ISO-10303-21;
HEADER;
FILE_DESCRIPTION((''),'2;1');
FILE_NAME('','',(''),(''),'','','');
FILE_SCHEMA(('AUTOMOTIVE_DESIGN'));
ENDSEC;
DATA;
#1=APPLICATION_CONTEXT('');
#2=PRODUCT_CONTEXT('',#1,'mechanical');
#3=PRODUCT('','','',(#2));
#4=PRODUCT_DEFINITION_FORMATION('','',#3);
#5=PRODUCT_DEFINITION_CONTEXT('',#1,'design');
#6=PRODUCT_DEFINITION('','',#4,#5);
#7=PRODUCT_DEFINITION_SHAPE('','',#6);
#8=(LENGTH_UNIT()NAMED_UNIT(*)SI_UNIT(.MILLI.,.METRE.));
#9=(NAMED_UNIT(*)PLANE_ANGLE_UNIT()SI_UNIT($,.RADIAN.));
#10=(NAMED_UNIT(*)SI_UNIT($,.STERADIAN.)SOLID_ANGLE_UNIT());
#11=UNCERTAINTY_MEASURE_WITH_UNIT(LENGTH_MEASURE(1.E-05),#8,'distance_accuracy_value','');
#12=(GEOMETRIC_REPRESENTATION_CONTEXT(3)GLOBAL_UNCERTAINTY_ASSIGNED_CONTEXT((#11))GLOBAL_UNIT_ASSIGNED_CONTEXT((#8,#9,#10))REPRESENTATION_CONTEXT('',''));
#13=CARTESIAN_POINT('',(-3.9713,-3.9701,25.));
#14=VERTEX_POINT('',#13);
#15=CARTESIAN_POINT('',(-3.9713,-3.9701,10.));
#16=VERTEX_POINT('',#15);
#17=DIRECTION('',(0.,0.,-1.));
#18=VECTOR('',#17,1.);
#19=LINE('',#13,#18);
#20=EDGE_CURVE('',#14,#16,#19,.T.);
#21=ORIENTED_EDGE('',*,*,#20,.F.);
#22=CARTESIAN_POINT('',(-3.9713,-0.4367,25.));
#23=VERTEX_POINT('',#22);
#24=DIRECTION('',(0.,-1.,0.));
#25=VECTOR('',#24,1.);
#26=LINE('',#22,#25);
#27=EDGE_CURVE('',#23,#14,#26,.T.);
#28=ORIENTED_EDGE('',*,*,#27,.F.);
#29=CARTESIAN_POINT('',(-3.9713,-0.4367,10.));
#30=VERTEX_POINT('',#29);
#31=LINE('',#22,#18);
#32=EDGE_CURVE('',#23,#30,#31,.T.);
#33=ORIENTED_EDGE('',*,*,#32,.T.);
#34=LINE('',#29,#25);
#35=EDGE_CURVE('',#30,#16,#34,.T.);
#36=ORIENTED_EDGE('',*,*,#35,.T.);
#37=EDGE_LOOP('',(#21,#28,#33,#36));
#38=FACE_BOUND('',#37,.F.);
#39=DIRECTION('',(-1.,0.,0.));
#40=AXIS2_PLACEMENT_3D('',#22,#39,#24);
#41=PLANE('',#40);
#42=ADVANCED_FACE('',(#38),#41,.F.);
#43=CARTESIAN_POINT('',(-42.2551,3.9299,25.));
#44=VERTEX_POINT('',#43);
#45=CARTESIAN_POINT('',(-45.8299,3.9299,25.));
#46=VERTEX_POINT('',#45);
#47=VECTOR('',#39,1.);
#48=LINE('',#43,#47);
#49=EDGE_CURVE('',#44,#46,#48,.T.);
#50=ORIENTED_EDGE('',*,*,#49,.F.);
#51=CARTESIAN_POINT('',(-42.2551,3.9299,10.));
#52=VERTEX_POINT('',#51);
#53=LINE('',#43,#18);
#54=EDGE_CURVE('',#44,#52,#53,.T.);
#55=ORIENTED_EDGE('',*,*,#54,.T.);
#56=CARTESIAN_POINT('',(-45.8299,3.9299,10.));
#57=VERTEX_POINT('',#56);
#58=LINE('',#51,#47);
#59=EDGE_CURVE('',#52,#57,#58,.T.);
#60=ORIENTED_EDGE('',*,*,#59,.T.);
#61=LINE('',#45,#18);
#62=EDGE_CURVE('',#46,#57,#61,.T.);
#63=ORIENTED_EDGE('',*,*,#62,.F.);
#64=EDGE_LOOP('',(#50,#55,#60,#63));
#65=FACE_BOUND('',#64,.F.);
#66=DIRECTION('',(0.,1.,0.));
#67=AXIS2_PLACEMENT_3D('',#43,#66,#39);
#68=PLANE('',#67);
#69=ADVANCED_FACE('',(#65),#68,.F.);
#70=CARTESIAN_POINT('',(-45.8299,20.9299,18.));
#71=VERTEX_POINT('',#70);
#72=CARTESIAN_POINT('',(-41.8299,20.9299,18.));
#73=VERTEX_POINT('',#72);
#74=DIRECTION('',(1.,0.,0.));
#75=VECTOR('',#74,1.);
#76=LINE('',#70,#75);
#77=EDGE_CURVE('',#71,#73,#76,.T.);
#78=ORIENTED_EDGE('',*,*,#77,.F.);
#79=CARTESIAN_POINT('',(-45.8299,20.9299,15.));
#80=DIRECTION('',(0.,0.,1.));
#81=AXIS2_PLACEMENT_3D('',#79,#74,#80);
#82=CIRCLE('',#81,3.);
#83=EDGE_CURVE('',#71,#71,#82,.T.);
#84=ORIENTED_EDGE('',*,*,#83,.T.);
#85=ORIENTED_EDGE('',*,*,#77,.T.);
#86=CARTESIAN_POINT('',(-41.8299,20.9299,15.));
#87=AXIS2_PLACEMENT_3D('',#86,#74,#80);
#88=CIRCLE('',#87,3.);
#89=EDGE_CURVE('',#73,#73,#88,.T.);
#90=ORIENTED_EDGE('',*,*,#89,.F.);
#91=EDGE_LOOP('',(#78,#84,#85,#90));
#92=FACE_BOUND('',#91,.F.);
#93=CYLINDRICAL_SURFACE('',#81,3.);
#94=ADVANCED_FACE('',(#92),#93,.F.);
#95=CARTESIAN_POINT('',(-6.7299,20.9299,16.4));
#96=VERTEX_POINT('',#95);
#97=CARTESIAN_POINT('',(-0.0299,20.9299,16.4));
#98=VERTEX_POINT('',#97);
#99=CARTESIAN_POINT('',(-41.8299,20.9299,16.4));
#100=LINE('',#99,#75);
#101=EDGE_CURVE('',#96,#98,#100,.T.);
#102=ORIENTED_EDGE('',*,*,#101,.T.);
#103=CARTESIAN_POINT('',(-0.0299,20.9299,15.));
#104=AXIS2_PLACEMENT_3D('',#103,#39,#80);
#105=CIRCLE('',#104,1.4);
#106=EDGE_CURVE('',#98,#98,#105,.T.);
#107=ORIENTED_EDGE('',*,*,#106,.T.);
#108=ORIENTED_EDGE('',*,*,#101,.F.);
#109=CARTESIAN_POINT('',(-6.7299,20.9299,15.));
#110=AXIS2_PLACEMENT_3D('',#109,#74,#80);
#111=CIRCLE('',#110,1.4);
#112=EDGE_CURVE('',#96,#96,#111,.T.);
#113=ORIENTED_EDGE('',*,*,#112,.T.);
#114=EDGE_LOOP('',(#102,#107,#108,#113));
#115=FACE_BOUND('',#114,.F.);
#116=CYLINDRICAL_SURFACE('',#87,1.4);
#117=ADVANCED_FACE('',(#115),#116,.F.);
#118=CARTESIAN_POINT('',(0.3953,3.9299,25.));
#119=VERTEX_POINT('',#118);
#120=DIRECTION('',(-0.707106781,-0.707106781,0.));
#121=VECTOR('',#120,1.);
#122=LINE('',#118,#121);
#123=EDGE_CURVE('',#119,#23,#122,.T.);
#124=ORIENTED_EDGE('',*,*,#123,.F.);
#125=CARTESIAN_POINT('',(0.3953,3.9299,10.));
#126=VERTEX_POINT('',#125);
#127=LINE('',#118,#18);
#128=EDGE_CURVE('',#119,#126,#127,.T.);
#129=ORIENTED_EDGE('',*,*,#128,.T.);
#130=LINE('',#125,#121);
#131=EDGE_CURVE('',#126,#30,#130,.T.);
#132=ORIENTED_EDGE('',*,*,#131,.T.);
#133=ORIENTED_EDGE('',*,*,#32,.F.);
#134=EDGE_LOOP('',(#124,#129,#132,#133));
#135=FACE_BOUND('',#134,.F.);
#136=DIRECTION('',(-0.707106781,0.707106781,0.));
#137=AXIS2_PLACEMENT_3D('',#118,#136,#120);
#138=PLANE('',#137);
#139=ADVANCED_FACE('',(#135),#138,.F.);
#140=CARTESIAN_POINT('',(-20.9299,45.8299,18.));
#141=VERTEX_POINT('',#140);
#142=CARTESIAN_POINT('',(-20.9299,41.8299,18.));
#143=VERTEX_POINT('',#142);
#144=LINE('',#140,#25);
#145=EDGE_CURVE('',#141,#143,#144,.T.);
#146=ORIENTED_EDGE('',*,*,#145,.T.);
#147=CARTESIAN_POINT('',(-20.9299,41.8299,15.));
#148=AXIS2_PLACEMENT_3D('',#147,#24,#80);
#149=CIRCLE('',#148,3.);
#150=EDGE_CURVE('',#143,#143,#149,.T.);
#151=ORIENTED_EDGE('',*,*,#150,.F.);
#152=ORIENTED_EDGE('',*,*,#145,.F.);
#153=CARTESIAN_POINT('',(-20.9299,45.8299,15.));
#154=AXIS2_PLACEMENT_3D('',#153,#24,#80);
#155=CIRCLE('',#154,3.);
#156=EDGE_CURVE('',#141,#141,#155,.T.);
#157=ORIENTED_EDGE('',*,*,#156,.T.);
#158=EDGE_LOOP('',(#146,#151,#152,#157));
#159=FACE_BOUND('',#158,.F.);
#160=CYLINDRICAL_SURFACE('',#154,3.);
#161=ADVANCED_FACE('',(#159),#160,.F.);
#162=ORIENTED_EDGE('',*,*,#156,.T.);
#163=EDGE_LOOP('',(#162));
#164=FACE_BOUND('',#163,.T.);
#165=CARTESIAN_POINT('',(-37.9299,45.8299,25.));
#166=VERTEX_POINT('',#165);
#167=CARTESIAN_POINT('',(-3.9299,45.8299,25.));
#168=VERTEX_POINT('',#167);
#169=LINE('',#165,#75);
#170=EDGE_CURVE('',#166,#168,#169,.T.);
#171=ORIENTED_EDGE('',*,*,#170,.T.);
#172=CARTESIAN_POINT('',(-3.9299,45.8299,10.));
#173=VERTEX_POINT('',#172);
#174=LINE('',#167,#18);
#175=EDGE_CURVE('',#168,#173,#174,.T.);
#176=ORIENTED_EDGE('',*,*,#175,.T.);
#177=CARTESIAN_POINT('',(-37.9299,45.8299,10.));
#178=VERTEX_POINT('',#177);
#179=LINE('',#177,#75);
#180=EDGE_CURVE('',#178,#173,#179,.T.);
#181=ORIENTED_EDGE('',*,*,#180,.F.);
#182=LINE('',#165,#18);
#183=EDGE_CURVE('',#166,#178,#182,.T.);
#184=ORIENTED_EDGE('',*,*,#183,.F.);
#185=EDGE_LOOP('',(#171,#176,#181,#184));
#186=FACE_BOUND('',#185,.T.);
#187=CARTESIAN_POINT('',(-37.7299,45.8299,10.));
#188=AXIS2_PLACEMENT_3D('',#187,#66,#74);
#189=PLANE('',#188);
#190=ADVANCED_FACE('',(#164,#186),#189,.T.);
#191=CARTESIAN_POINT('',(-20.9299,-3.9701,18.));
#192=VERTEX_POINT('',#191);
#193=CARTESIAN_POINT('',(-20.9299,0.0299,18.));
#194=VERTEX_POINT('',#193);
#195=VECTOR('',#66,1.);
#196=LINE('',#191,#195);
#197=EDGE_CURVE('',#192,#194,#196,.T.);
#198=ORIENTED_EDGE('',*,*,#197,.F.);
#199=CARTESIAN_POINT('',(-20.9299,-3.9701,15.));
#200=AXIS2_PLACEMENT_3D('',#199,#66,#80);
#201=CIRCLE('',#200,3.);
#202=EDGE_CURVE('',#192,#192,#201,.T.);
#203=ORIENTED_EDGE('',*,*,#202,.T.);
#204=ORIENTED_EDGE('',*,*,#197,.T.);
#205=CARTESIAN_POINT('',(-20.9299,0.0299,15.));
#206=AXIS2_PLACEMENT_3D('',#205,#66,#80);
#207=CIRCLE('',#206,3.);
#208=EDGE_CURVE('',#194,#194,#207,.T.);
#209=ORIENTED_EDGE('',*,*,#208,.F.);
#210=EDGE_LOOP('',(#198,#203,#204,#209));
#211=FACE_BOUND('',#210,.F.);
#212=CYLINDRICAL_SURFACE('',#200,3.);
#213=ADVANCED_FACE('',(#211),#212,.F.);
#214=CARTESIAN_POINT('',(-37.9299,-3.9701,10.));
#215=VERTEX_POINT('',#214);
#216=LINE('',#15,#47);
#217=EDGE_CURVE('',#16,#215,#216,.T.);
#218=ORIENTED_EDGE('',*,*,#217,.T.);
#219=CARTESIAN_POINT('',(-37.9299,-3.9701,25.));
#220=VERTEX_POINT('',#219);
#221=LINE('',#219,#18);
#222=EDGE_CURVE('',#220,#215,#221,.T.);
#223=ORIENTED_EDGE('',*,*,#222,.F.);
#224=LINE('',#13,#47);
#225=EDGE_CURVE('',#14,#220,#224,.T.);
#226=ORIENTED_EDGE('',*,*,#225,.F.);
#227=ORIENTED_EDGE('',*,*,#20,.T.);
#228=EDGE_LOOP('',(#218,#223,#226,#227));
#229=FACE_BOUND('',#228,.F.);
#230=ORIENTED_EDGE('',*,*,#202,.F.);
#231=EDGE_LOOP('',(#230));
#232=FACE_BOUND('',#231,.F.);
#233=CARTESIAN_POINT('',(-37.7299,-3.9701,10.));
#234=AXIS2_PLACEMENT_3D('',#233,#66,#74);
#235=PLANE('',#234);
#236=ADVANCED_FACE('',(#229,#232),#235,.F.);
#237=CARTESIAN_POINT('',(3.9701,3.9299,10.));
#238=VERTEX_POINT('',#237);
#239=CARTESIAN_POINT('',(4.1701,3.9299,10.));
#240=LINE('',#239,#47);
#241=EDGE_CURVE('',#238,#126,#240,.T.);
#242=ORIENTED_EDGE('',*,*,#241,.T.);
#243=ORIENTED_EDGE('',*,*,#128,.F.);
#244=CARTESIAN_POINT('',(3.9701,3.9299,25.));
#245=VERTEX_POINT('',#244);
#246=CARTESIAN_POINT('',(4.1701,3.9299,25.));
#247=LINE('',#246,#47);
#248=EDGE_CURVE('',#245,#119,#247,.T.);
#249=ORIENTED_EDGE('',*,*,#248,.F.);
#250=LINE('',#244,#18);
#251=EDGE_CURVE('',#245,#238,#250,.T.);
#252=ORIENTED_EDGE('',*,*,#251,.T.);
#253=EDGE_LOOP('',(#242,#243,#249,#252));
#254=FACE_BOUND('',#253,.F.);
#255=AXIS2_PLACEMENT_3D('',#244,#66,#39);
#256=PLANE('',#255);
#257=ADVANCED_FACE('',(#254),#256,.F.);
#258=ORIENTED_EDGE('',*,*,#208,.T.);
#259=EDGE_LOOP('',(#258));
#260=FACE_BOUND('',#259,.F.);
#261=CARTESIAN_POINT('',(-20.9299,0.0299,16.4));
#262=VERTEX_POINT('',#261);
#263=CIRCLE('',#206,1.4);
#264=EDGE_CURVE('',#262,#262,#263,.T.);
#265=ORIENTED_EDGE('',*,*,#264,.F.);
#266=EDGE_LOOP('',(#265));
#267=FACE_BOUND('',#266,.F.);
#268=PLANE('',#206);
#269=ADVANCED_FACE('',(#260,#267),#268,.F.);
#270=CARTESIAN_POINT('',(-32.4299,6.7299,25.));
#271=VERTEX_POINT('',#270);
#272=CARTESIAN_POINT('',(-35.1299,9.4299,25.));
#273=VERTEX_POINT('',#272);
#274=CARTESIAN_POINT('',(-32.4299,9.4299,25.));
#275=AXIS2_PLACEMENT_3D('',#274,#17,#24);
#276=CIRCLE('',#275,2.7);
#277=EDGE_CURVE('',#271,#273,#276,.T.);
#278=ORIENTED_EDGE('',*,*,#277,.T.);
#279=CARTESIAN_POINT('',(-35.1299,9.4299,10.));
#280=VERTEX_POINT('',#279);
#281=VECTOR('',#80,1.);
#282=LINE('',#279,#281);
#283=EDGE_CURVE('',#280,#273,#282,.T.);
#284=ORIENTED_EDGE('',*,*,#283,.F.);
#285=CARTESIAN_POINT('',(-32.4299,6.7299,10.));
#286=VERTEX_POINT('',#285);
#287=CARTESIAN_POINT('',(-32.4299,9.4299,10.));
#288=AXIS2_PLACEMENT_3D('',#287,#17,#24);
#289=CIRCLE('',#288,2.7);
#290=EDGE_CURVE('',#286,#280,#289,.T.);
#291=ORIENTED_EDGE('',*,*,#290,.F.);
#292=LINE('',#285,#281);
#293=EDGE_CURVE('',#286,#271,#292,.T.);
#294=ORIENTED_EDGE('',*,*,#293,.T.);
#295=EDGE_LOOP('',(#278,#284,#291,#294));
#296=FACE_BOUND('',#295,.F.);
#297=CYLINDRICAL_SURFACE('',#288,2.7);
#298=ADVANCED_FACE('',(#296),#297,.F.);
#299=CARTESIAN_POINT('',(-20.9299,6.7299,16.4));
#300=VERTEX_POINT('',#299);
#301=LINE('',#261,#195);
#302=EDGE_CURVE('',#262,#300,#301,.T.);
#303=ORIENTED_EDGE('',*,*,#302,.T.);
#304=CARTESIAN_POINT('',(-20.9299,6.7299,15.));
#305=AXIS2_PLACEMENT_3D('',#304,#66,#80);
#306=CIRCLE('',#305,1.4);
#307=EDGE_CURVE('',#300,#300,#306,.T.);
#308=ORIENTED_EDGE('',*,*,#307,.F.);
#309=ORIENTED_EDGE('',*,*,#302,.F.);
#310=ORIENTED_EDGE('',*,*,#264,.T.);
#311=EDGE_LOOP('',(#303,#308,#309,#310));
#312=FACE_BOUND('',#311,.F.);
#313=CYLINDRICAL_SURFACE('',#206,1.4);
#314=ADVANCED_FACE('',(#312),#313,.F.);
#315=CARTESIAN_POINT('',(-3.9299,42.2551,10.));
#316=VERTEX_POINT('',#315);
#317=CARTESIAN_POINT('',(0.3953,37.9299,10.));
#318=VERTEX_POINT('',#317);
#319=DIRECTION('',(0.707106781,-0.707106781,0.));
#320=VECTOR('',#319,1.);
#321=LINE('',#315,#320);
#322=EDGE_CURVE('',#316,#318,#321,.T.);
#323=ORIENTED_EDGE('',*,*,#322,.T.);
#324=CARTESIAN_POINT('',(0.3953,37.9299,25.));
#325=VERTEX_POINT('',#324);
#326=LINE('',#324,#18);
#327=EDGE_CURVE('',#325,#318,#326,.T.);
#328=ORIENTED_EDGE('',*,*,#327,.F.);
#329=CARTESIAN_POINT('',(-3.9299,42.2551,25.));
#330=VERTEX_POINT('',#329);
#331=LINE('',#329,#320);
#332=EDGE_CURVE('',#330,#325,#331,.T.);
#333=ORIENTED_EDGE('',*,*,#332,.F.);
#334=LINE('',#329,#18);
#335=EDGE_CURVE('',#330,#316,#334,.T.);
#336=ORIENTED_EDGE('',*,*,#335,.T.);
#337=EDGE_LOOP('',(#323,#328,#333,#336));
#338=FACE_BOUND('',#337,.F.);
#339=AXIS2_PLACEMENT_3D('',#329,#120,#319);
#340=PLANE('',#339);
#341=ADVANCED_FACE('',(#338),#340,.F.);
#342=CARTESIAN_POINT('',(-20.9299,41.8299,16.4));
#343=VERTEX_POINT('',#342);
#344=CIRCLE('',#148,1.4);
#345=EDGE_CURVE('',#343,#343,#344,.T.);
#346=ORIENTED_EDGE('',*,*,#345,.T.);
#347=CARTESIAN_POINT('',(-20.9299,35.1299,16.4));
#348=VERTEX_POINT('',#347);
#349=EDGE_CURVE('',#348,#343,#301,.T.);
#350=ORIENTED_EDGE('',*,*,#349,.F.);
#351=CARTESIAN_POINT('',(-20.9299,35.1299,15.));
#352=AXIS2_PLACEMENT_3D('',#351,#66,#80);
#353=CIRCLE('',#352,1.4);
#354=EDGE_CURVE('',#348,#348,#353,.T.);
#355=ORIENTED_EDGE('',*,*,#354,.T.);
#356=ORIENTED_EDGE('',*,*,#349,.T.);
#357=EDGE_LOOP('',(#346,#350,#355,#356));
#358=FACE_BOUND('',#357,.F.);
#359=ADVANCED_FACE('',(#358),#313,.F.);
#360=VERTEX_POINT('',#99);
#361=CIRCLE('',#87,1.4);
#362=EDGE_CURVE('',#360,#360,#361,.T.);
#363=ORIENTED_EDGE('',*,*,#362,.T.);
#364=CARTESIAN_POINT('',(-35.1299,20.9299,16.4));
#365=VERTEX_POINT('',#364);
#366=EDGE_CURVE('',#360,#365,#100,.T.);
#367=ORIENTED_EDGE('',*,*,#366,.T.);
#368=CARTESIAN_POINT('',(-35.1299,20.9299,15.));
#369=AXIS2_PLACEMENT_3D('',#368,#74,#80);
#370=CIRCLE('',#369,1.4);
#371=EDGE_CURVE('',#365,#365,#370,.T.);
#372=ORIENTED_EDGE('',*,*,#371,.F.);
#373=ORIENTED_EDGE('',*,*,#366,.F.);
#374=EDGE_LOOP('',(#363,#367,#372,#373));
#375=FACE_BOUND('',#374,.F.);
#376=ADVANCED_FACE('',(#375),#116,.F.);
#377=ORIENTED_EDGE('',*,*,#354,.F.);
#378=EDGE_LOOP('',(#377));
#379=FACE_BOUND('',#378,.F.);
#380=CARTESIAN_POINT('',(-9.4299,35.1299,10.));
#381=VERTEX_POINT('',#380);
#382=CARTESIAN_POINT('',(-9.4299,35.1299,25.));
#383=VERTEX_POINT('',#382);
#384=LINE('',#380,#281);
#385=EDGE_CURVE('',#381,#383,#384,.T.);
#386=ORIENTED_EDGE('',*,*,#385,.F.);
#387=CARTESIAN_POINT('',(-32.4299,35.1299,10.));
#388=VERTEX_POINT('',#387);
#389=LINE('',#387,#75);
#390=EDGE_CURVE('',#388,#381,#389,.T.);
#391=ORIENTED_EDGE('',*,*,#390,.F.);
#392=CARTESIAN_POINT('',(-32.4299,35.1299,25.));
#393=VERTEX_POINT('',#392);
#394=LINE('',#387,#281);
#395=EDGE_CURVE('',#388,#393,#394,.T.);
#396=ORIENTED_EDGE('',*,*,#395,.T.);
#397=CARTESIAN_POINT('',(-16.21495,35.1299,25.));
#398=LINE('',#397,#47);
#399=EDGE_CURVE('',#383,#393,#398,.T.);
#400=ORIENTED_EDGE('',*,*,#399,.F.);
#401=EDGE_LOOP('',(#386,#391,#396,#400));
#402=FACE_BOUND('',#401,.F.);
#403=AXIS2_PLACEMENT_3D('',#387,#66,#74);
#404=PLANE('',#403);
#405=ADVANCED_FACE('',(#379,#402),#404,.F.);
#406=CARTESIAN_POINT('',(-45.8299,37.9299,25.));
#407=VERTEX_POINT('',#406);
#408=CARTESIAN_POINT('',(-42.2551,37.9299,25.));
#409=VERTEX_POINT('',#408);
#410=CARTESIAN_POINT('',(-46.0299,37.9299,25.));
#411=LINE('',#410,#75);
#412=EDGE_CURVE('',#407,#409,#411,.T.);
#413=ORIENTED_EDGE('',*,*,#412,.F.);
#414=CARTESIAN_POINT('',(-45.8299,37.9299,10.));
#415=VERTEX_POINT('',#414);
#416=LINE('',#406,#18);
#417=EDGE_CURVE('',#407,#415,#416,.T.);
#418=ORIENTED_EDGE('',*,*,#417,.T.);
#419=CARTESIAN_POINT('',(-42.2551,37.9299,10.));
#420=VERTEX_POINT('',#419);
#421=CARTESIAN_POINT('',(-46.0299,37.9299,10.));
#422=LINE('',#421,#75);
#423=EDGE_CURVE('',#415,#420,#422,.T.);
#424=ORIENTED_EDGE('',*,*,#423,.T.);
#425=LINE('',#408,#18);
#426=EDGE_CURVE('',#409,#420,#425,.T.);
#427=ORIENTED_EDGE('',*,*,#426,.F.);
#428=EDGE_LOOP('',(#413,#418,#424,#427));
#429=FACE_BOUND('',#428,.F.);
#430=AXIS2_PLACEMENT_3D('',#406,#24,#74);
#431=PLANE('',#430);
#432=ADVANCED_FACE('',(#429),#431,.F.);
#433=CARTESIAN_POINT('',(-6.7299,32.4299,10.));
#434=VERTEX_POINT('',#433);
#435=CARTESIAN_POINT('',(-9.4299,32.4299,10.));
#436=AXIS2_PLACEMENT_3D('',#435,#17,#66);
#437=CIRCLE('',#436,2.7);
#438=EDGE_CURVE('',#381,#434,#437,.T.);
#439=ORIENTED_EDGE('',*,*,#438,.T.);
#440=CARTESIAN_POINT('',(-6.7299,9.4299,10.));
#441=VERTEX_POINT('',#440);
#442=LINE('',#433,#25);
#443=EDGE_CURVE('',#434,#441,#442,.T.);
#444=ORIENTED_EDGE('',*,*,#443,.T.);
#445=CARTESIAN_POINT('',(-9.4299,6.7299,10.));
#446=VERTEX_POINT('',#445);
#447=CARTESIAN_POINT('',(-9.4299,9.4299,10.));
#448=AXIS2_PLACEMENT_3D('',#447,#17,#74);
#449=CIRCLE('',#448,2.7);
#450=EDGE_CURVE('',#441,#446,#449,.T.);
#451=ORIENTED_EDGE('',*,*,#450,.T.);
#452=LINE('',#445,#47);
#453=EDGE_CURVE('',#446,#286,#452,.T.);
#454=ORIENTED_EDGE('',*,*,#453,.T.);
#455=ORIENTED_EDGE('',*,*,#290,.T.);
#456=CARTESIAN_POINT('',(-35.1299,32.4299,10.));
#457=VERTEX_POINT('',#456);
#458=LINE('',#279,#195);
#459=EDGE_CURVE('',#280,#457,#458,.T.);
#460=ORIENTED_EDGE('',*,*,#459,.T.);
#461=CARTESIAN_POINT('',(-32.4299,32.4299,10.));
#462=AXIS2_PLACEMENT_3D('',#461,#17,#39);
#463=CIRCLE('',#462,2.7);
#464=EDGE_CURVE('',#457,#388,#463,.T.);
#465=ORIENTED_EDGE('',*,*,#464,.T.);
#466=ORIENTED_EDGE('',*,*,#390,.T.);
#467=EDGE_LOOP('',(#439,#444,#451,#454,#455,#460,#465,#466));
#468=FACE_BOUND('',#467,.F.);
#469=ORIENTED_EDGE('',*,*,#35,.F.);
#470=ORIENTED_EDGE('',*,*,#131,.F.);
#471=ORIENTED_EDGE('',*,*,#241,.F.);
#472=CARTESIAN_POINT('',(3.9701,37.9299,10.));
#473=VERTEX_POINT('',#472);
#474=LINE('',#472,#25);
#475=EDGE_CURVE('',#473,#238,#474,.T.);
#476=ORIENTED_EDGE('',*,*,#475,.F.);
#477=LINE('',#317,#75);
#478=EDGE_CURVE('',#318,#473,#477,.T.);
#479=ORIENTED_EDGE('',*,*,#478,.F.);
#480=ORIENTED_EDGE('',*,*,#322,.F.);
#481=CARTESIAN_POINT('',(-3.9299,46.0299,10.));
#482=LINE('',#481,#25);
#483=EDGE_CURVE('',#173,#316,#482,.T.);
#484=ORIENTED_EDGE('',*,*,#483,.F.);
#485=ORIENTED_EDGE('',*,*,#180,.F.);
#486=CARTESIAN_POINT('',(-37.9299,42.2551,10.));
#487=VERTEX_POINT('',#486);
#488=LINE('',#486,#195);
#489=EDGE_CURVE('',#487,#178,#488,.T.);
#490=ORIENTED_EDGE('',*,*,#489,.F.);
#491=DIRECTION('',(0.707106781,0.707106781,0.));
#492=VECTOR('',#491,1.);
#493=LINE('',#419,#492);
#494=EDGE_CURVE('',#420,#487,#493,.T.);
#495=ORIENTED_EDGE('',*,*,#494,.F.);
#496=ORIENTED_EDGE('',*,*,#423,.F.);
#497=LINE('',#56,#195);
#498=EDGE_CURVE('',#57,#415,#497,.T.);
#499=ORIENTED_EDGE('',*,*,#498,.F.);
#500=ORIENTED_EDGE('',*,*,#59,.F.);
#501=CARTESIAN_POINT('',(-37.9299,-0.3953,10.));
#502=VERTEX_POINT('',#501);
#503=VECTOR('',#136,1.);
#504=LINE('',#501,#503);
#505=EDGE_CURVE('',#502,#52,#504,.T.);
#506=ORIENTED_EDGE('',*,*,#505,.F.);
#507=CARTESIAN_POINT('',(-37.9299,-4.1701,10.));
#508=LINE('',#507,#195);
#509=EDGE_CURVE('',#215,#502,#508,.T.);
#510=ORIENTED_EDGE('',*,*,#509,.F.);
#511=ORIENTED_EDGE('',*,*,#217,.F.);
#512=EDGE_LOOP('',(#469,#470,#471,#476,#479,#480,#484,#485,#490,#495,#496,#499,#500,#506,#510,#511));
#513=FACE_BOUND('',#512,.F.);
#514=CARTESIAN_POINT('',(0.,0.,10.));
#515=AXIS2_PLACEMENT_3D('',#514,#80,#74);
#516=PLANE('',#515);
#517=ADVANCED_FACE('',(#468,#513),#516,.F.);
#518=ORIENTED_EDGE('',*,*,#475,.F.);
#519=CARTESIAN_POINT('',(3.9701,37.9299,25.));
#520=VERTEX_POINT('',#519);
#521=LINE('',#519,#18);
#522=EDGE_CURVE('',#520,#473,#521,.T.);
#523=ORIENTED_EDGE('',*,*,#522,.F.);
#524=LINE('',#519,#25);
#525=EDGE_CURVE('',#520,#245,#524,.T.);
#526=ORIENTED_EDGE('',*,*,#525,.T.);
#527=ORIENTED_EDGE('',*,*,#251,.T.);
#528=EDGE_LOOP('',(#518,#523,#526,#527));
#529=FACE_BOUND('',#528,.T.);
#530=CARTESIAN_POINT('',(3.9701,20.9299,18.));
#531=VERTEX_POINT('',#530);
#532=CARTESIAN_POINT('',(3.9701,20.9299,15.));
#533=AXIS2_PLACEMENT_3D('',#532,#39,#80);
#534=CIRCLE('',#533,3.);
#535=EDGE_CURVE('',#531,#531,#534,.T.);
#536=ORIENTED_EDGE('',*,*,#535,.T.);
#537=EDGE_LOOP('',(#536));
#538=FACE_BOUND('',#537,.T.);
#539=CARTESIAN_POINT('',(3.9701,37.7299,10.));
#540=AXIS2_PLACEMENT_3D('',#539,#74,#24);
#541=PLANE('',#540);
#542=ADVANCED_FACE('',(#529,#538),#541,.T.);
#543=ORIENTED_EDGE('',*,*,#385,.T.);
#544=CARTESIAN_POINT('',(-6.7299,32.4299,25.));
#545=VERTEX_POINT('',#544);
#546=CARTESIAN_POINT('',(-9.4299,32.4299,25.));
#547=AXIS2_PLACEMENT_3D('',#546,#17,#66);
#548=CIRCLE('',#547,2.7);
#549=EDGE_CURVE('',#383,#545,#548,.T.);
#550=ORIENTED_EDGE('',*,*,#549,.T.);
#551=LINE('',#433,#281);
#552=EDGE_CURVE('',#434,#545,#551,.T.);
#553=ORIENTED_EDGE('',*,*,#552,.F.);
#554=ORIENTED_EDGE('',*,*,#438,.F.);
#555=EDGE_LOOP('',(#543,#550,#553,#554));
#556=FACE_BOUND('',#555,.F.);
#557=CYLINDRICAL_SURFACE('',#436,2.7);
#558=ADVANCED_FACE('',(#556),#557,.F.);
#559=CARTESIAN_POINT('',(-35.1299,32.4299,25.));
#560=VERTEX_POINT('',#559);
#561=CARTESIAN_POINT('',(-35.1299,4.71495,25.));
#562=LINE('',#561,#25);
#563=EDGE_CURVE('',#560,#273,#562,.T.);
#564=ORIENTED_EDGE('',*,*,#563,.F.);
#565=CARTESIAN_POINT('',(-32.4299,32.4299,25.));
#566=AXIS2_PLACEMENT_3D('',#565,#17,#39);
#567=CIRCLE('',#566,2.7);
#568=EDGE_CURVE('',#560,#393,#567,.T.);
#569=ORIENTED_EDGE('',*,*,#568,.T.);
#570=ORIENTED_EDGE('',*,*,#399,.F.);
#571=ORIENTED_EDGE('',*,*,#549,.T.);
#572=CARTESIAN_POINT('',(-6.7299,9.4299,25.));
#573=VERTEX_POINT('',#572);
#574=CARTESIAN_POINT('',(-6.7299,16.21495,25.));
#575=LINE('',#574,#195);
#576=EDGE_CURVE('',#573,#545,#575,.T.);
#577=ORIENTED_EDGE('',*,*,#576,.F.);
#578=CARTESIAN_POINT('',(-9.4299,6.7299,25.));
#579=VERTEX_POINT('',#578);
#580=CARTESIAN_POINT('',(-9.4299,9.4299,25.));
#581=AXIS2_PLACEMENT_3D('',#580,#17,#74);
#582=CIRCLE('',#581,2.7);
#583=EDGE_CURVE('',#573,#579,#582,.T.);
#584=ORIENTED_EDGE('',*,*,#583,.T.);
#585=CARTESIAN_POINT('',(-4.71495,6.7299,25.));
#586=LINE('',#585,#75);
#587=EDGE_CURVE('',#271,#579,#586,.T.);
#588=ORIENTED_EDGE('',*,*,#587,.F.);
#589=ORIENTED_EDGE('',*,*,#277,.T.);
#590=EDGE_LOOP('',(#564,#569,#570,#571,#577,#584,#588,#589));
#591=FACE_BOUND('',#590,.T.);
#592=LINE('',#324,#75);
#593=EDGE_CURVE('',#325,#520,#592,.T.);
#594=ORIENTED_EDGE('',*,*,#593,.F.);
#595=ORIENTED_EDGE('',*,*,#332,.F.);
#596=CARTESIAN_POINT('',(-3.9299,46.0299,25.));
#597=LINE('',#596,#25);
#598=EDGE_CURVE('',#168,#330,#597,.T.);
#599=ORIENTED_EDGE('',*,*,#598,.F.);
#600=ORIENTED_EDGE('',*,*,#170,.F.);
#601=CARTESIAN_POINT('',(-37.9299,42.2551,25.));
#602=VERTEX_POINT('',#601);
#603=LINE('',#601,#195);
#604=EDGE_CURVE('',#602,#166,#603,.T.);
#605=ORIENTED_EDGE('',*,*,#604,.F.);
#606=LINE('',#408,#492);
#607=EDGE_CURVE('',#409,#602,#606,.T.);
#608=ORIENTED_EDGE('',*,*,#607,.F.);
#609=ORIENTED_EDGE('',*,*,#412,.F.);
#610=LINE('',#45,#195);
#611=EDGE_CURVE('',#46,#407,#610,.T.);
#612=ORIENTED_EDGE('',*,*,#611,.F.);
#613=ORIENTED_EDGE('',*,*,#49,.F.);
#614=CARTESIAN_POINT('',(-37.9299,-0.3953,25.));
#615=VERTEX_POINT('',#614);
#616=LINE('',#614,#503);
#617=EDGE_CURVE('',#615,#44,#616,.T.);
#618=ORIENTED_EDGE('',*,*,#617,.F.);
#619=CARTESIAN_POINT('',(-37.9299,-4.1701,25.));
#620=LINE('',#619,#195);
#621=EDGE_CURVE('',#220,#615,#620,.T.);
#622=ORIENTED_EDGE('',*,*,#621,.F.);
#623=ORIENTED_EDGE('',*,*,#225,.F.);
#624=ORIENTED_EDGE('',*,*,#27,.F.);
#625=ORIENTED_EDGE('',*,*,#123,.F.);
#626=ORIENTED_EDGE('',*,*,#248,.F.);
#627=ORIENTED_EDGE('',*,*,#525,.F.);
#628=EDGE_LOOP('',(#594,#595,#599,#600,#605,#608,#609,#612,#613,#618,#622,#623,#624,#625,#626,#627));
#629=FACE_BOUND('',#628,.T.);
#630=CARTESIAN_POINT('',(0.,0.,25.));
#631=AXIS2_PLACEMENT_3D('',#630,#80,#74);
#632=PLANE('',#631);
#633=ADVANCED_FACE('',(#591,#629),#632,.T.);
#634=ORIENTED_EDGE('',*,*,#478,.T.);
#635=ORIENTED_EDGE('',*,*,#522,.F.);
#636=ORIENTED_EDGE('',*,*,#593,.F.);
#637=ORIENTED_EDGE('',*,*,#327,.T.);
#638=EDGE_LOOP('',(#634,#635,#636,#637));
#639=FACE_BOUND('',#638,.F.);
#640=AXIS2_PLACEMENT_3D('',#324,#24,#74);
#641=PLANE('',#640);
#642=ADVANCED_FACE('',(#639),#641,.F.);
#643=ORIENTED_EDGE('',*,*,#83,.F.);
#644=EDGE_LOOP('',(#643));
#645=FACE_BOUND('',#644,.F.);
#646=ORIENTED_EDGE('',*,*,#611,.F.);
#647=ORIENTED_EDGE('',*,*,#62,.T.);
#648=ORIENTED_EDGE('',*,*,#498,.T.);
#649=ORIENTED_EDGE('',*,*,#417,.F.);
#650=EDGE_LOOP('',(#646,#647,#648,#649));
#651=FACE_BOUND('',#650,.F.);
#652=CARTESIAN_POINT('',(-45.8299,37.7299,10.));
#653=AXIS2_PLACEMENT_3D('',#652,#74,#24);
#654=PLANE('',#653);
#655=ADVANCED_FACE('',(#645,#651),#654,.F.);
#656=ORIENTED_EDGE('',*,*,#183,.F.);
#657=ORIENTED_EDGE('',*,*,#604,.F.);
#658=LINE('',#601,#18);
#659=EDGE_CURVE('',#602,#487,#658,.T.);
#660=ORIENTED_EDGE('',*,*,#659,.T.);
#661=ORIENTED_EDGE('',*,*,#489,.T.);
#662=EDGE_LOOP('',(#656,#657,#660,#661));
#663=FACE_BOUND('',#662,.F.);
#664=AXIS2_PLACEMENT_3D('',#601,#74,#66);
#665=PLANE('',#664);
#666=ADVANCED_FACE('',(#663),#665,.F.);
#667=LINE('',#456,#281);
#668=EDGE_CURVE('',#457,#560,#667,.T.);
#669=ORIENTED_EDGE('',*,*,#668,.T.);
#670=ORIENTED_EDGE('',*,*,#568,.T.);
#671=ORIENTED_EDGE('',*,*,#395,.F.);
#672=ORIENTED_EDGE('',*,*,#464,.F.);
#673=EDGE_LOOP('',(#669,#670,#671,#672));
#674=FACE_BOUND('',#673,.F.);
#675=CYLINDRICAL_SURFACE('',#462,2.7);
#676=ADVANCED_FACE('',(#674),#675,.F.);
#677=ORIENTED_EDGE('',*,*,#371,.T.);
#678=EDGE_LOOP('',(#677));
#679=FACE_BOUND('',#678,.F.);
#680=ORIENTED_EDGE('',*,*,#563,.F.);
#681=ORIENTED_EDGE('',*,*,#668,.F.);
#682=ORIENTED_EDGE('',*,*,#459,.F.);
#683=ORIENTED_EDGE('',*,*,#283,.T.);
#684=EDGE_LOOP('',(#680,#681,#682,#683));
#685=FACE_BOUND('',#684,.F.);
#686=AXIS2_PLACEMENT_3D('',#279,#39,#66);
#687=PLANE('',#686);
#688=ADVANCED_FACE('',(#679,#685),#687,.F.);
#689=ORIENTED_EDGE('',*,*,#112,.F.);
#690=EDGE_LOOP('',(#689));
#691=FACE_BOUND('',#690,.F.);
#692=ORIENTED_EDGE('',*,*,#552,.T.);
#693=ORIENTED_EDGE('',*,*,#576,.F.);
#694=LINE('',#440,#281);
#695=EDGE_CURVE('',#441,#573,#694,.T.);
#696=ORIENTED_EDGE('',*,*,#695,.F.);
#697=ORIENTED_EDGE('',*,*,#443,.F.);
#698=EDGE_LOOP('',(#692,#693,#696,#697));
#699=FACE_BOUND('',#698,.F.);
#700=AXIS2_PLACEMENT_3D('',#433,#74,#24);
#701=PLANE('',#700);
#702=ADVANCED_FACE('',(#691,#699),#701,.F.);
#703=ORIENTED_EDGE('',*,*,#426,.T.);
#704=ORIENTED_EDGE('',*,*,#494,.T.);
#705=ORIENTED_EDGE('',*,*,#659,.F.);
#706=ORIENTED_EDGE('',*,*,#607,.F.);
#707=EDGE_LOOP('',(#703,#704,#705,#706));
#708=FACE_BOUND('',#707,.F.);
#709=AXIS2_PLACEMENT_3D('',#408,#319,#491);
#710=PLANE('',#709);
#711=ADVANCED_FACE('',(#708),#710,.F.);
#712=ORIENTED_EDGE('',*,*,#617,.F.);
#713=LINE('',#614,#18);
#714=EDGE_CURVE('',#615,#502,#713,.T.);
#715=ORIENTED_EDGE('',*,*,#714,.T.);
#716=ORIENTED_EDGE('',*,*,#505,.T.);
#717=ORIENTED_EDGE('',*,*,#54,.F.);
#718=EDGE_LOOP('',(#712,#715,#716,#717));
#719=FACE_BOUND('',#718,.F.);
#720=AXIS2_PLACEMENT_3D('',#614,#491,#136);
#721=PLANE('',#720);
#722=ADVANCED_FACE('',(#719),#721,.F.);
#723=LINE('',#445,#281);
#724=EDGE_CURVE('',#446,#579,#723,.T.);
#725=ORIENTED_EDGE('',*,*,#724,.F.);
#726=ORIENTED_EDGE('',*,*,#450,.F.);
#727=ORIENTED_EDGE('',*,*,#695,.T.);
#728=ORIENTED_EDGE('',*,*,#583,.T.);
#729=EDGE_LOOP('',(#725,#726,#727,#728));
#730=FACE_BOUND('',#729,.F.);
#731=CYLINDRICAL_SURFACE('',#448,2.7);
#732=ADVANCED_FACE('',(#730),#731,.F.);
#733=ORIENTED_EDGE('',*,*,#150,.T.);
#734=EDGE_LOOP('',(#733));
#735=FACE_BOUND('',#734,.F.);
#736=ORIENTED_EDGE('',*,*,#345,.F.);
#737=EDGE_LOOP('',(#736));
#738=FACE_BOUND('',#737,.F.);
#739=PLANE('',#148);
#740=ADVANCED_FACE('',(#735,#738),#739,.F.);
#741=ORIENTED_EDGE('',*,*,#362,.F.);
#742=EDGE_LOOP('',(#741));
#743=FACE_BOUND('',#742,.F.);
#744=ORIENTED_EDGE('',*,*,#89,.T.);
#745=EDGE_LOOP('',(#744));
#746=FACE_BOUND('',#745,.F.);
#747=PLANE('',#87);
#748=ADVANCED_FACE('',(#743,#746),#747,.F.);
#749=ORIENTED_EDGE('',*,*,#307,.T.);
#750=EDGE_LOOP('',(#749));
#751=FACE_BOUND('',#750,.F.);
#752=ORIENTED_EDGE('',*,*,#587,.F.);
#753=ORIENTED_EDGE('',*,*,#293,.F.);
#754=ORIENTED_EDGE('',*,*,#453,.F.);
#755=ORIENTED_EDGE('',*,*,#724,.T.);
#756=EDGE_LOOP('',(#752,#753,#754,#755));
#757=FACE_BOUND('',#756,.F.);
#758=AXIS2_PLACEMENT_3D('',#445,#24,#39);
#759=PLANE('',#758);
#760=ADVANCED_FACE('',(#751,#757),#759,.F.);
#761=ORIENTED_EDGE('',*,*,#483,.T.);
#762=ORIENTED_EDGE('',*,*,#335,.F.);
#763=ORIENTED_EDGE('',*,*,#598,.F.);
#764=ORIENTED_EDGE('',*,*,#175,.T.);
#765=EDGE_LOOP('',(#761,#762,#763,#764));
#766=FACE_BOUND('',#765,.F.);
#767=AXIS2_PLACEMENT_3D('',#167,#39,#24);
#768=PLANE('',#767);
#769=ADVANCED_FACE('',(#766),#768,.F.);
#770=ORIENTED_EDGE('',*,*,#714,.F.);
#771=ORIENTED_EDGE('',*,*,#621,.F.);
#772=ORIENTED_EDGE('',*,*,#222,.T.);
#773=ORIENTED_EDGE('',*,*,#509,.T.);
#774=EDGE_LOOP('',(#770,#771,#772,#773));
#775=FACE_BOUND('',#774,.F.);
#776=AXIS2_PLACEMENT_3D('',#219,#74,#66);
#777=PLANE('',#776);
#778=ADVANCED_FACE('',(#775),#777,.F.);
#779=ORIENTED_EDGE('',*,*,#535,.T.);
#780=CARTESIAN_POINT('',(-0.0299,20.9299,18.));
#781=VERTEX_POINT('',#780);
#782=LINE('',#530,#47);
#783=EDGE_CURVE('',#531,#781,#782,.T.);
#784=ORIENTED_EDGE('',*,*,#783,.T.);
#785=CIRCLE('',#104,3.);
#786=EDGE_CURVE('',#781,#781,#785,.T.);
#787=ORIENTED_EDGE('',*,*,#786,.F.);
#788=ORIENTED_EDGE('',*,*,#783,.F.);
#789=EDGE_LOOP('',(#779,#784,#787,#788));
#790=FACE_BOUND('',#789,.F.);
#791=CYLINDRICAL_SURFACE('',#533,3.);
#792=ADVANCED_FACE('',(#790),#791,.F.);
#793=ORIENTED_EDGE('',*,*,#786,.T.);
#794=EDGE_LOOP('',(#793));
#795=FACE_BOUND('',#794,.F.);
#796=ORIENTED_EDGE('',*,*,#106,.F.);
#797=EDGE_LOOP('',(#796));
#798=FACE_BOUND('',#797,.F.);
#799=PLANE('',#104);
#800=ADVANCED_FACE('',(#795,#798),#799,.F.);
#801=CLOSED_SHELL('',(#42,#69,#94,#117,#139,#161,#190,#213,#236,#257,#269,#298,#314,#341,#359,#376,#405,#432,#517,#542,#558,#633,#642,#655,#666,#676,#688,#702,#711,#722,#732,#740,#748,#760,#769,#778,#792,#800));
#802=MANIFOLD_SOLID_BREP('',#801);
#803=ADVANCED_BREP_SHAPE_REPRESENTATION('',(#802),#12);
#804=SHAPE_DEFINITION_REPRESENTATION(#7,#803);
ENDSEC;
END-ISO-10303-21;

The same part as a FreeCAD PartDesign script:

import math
import FreeCAD as App
import Part
import Sketcher

V = App.Vector

doc = App.newDocument("Part")
body = doc.addObject("PartDesign::Body", "Body")

# Sketch on XY plane
sketch1 = body.newObject("Sketcher::SketchObject", "Sketch")
sketch1.AttachmentSupport = (doc.getObject("XY_Plane"), [""])
sketch1.MapMode = "FlatFace"
sketch1.AttachmentOffset = App.Placement(V(0, 0, 10), App.Rotation())
sketch1.addGeometry(Part.LineSegment(V(-4.171, -0.354, 0), V(0.312, 4.13, 0)), False)
sketch1.addGeometry(Part.LineSegment(V(0.312, 4.13, 0), V(3.97, 4.13, 0)), False)
sketch1.addGeometry(Part.LineSegment(V(3.97, 4.13, 0), V(3.97, 37.73, 0)), False)
sketch1.addGeometry(Part.LineSegment(V(3.97, 37.73, 0), V(0.312, 37.73, 0)), False)
sketch1.addGeometry(Part.LineSegment(V(0.312, 37.73, 0), V(-4.13, 42.172, 0)), False)
sketch1.addGeometry(Part.LineSegment(V(-4.13, 42.172, 0), V(-4.13, 45.83, 0)), False)
sketch1.addGeometry(Part.LineSegment(V(-4.13, 45.83, 0), V(-37.73, 45.83, 0)), False)
sketch1.addGeometry(Part.LineSegment(V(-37.73, 45.83, 0), V(-37.73, 42.172, 0)), False)
sketch1.addGeometry(Part.LineSegment(V(-37.73, 42.172, 0), V(-42.172, 37.73, 0)), False)
sketch1.addGeometry(Part.LineSegment(V(-42.172, 37.73, 0), V(-45.83, 37.73, 0)), False)
sketch1.addGeometry(Part.LineSegment(V(-45.83, 37.73, 0), V(-45.83, 4.13, 0)), False)
sketch1.addGeometry(Part.LineSegment(V(-45.83, 4.13, 0), V(-42.172, 4.13, 0)), False)
sketch1.addGeometry(Part.LineSegment(V(-42.172, 4.13, 0), V(-37.689, -0.354, 0)), False)
sketch1.addGeometry(Part.LineSegment(V(-37.689, -0.354, 0), V(-37.73, -0.354, 0)), False)
sketch1.addGeometry(Part.LineSegment(V(-37.73, -0.354, 0), V(-37.73, -3.97, 0)), False)
sketch1.addGeometry(Part.LineSegment(V(-37.73, -3.97, 0), V(-4.171, -3.97, 0)), False)
sketch1.addGeometry(Part.LineSegment(V(-4.171, -3.97, 0), V(-4.171, -0.354, 0)), False)
sketch1.addConstraint(Sketcher.Constraint("Coincident", 0, 2, 1, 1))
sketch1.addConstraint(Sketcher.Constraint("Coincident", 1, 2, 2, 1))
sketch1.addConstraint(Sketcher.Constraint("Coincident", 2, 2, 3, 1))
sketch1.addConstraint(Sketcher.Constraint("Coincident", 3, 2, 4, 1))
sketch1.addConstraint(Sketcher.Constraint("Coincident", 4, 2, 5, 1))
sketch1.addConstraint(Sketcher.Constraint("Coincident", 5, 2, 6, 1))
sketch1.addConstraint(Sketcher.Constraint("Coincident", 6, 2, 7, 1))
sketch1.addConstraint(Sketcher.Constraint("Coincident", 7, 2, 8, 1))
sketch1.addConstraint(Sketcher.Constraint("Coincident", 8, 2, 9, 1))
sketch1.addConstraint(Sketcher.Constraint("Coincident", 9, 2, 10, 1))
sketch1.addConstraint(Sketcher.Constraint("Coincident", 10, 2, 11, 1))
sketch1.addConstraint(Sketcher.Constraint("Coincident", 11, 2, 12, 1))
sketch1.addConstraint(Sketcher.Constraint("Coincident", 12, 2, 13, 1))
sketch1.addConstraint(Sketcher.Constraint("Coincident", 13, 2, 14, 1))
sketch1.addConstraint(Sketcher.Constraint("Coincident", 14, 2, 15, 1))
sketch1.addConstraint(Sketcher.Constraint("Coincident", 15, 2, 16, 1))
sketch1.addConstraint(Sketcher.Constraint("Coincident", 16, 2, 0, 1))
sketch1.addConstraint(Sketcher.Constraint("Horizontal", 1))
sketch1.addConstraint(Sketcher.Constraint("Vertical", 2))
sketch1.addConstraint(Sketcher.Constraint("Horizontal", 3))
sketch1.addConstraint(Sketcher.Constraint("Vertical", 5))
sketch1.addConstraint(Sketcher.Constraint("Horizontal", 6))
sketch1.addConstraint(Sketcher.Constraint("Vertical", 7))
sketch1.addConstraint(Sketcher.Constraint("Horizontal", 9))
sketch1.addConstraint(Sketcher.Constraint("Vertical", 10))
sketch1.addConstraint(Sketcher.Constraint("Horizontal", 11))
sketch1.addConstraint(Sketcher.Constraint("Horizontal", 13))
sketch1.addConstraint(Sketcher.Constraint("Vertical", 14))
sketch1.addConstraint(Sketcher.Constraint("Horizontal", 15))
sketch1.addConstraint(Sketcher.Constraint("Vertical", 16))
sketch1.addConstraint(Sketcher.Constraint("Perpendicular", 0, 4))
sketch1.addConstraint(Sketcher.Constraint("Perpendicular", 4, 8))
sketch1.addConstraint(Sketcher.Constraint("Perpendicular", 8, 12))
sketch1.addConstraint(Sketcher.Constraint("Horizontal", 4, 2, 7, 2))
sketch1.addConstraint(Sketcher.Constraint("Horizontal", 3, 2, 8, 2))
sketch1.addConstraint(Sketcher.Constraint("Horizontal", 1, 2, 10, 2))
sketch1.addConstraint(Sketcher.Constraint("Horizontal", 13, 2, 16, 2))
sketch1.addConstraint(Sketcher.Constraint("Vertical", 0, 2, 3, 2))
sketch1.addConstraint(Sketcher.Constraint("Vertical", 8, 2, 11, 2))
sketch1.addConstraint(Sketcher.Constraint("Vertical", 7, 2, 13, 2))
sketch1.addConstraint(Sketcher.Constraint("Equal", 3, 9))
sketch1.addConstraint(Sketcher.Constraint("Equal", 6, 2))
sketch1.addConstraint(Sketcher.Constraint("Equal", 11, 5))
sketch1.addConstraint(Sketcher.Constraint("Equal", 4, 8))
sketch1.addConstraint(Sketcher.Constraint("DistanceX", 6, 2, 6, 1, 33.6))
sketch1.addConstraint(Sketcher.Constraint("DistanceX", 4, 2, 2, 2, 8.1))
sketch1.addConstraint(Sketcher.Constraint("DistanceY", 14, 2, 11, 2, 8.1))
sketch1.addConstraint(Sketcher.Constraint("DistanceY", -1, 1, 0, 2, 4.13))
sketch1.addConstraint(Sketcher.Constraint("DistanceX", -1, 1, 1, 2, 3.97))
sketch1.addConstraint(Sketcher.Constraint("Distance", 0, 6.341))
sketch1.addConstraint(Sketcher.Constraint("DistanceX", 1, 1, 1, 2, 3.6577))
pad1 = body.newObject("PartDesign::Pad", "Pad")
pad1.Profile = sketch1
pad1.Length = 15

# Sketch on XY plane
sketch2 = body.newObject("Sketcher::SketchObject", "Sketch001")
sketch2.AttachmentSupport = (doc.getObject("XY_Plane"), [""])
sketch2.MapMode = "FlatFace"
sketch2.AttachmentOffset = App.Placement(V(0, 0, 25), App.Rotation())
sketch2.addGeometry(Part.LineSegment(V(3.97, 3.93, 0), V(3.97, 4.13, 0)), False)
sketch2.addGeometry(Part.LineSegment(V(3.97, 4.13, 0), V(0.312, 4.13, 0)), False)
sketch2.addGeometry(Part.LineSegment(V(0.312, 4.13, 0), V(-4.171, -0.354, 0)), False)
sketch2.addGeometry(Part.LineSegment(V(-4.171, -0.354, 0), V(-4.171, -3.97, 0)), False)
sketch2.addGeometry(Part.LineSegment(V(-4.171, -3.97, 0), V(-3.971, -3.97, 0)), False)
sketch2.addGeometry(Part.LineSegment(V(-3.971, -3.97, 0), V(-3.971, -0.437, 0)), False)
sketch2.addGeometry(Part.LineSegment(V(-3.971, -0.437, 0), V(0.395, 3.93, 0)), False)
sketch2.addGeometry(Part.LineSegment(V(0.395, 3.93, 0), V(3.97, 3.93, 0)), False)
sketch2.addGeometry(Part.LineSegment(V(-3.93, 45.83, 0), V(-4.13, 45.83, 0)), False)
sketch2.addGeometry(Part.LineSegment(V(-4.13, 45.83, 0), V(-4.13, 42.172, 0)), False)
sketch2.addGeometry(Part.LineSegment(V(-4.13, 42.172, 0), V(0.312, 37.73, 0)), False)
sketch2.addGeometry(Part.LineSegment(V(0.312, 37.73, 0), V(3.97, 37.73, 0)), False)
sketch2.addGeometry(Part.LineSegment(V(3.97, 37.73, 0), V(3.97, 37.93, 0)), False)
sketch2.addGeometry(Part.LineSegment(V(3.97, 37.93, 0), V(0.395, 37.93, 0)), False)
sketch2.addGeometry(Part.LineSegment(V(0.395, 37.93, 0), V(-3.93, 42.255, 0)), False)
sketch2.addGeometry(Part.LineSegment(V(-3.93, 42.255, 0), V(-3.93, 45.83, 0)), False)
sketch2.addGeometry(Part.LineSegment(V(-42.172, 37.73, 0), V(-37.73, 42.172, 0)), False)
sketch2.addGeometry(Part.LineSegment(V(-37.73, 42.172, 0), V(-37.73, 45.83, 0)), False)
sketch2.addGeometry(Part.LineSegment(V(-37.73, 45.83, 0), V(-37.93, 45.83, 0)), False)
sketch2.addGeometry(Part.LineSegment(V(-37.93, 45.83, 0), V(-37.93, 42.255, 0)), False)
sketch2.addGeometry(Part.LineSegment(V(-37.93, 42.255, 0), V(-42.255, 37.93, 0)), False)
sketch2.addGeometry(Part.LineSegment(V(-42.255, 37.93, 0), V(-45.83, 37.93, 0)), False)
sketch2.addGeometry(Part.LineSegment(V(-45.83, 37.93, 0), V(-45.83, 37.73, 0)), False)
sketch2.addGeometry(Part.LineSegment(V(-45.83, 37.73, 0), V(-42.172, 37.73, 0)), False)
sketch2.addGeometry(Part.LineSegment(V(-42.172, 4.13, 0), V(-45.83, 4.13, 0)), False)
sketch2.addGeometry(Part.LineSegment(V(-45.83, 4.13, 0), V(-45.83, 3.93, 0)), False)
sketch2.addGeometry(Part.LineSegment(V(-45.83, 3.93, 0), V(-42.255, 3.93, 0)), False)
sketch2.addGeometry(Part.LineSegment(V(-42.255, 3.93, 0), V(-37.93, -0.395, 0)), False)
sketch2.addGeometry(Part.LineSegment(V(-37.93, -0.395, 0), V(-37.93, -3.97, 0)), False)
sketch2.addGeometry(Part.LineSegment(V(-37.93, -3.97, 0), V(-37.73, -3.97, 0)), False)
sketch2.addGeometry(Part.LineSegment(V(-37.73, -3.97, 0), V(-37.73, -0.354, 0)), False)
sketch2.addGeometry(Part.LineSegment(V(-37.73, -0.354, 0), V(-37.688, -0.354, 0)), False)
sketch2.addGeometry(Part.LineSegment(V(-37.688, -0.354, 0), V(-42.172, 4.13, 0)), False)
sketch2.addConstraint(Sketcher.Constraint("Coincident", 0, 2, 1, 1))
sketch2.addConstraint(Sketcher.Constraint("Coincident", 1, 2, 2, 1))
sketch2.addConstraint(Sketcher.Constraint("Coincident", 2, 2, 3, 1))
sketch2.addConstraint(Sketcher.Constraint("Coincident", 3, 2, 4, 1))
sketch2.addConstraint(Sketcher.Constraint("Coincident", 4, 2, 5, 1))
sketch2.addConstraint(Sketcher.Constraint("Coincident", 5, 2, 6, 1))
sketch2.addConstraint(Sketcher.Constraint("Coincident", 6, 2, 7, 1))
sketch2.addConstraint(Sketcher.Constraint("Coincident", 7, 2, 0, 1))
sketch2.addConstraint(Sketcher.Constraint("Coincident", 8, 2, 9, 1))
sketch2.addConstraint(Sketcher.Constraint("Coincident", 9, 2, 10, 1))
sketch2.addConstraint(Sketcher.Constraint("Coincident", 10, 2, 11, 1))
sketch2.addConstraint(Sketcher.Constraint("Coincident", 11, 2, 12, 1))
sketch2.addConstraint(Sketcher.Constraint("Coincident", 12, 2, 13, 1))
sketch2.addConstraint(Sketcher.Constraint("Coincident", 13, 2, 14, 1))
sketch2.addConstraint(Sketcher.Constraint("Coincident", 14, 2, 15, 1))
sketch2.addConstraint(Sketcher.Constraint("Coincident", 15, 2, 8, 1))
sketch2.addConstraint(Sketcher.Constraint("Coincident", 16, 2, 17, 1))
sketch2.addConstraint(Sketcher.Constraint("Coincident", 17, 2, 18, 1))
sketch2.addConstraint(Sketcher.Constraint("Coincident", 18, 2, 19, 1))
sketch2.addConstraint(Sketcher.Constraint("Coincident", 19, 2, 20, 1))
sketch2.addConstraint(Sketcher.Constraint("Coincident", 20, 2, 21, 1))
sketch2.addConstraint(Sketcher.Constraint("Coincident", 21, 2, 22, 1))
sketch2.addConstraint(Sketcher.Constraint("Coincident", 22, 2, 23, 1))
sketch2.addConstraint(Sketcher.Constraint("Coincident", 23, 2, 16, 1))
sketch2.addConstraint(Sketcher.Constraint("Coincident", 24, 2, 25, 1))
sketch2.addConstraint(Sketcher.Constraint("Coincident", 25, 2, 26, 1))
sketch2.addConstraint(Sketcher.Constraint("Coincident", 26, 2, 27, 1))
sketch2.addConstraint(Sketcher.Constraint("Coincident", 27, 2, 28, 1))
sketch2.addConstraint(Sketcher.Constraint("Coincident", 28, 2, 29, 1))
sketch2.addConstraint(Sketcher.Constraint("Coincident", 29, 2, 30, 1))
sketch2.addConstraint(Sketcher.Constraint("Coincident", 30, 2, 31, 1))
sketch2.addConstraint(Sketcher.Constraint("Coincident", 31, 2, 32, 1))
sketch2.addConstraint(Sketcher.Constraint("Coincident", 32, 2, 24, 1))
sketch2.addConstraint(Sketcher.Constraint("Vertical", 0))
sketch2.addConstraint(Sketcher.Constraint("Horizontal", 1))
sketch2.addConstraint(Sketcher.Constraint("Vertical", 3))
sketch2.addConstraint(Sketcher.Constraint("Horizontal", 4))
sketch2.addConstraint(Sketcher.Constraint("Vertical", 5))
sketch2.addConstraint(Sketcher.Constraint("Horizontal", 7))
sketch2.addConstraint(Sketcher.Constraint("Horizontal", 8))
sketch2.addConstraint(Sketcher.Constraint("Vertical", 9))
sketch2.addConstraint(Sketcher.Constraint("Horizontal", 11))
sketch2.addConstraint(Sketcher.Constraint("Vertical", 12))
sketch2.addConstraint(Sketcher.Constraint("Horizontal", 13))
sketch2.addConstraint(Sketcher.Constraint("Vertical", 15))
sketch2.addConstraint(Sketcher.Constraint("Vertical", 17))
sketch2.addConstraint(Sketcher.Constraint("Horizontal", 18))
sketch2.addConstraint(Sketcher.Constraint("Vertical", 19))
sketch2.addConstraint(Sketcher.Constraint("Horizontal", 21))
sketch2.addConstraint(Sketcher.Constraint("Vertical", 22))
sketch2.addConstraint(Sketcher.Constraint("Horizontal", 23))
sketch2.addConstraint(Sketcher.Constraint("Horizontal", 24))
sketch2.addConstraint(Sketcher.Constraint("Vertical", 25))
sketch2.addConstraint(Sketcher.Constraint("Horizontal", 26))
sketch2.addConstraint(Sketcher.Constraint("Vertical", 28))
sketch2.addConstraint(Sketcher.Constraint("Horizontal", 29))
sketch2.addConstraint(Sketcher.Constraint("Vertical", 30))
sketch2.addConstraint(Sketcher.Constraint("Horizontal", 31))
sketch2.addConstraint(Sketcher.Constraint("Parallel", 2, 6))
sketch2.addConstraint(Sketcher.Constraint("Perpendicular", 6, 10))
sketch2.addConstraint(Sketcher.Constraint("Parallel", 10, 14))
sketch2.addConstraint(Sketcher.Constraint("Perpendicular", 14, 16))
sketch2.addConstraint(Sketcher.Constraint("Parallel", 16, 20))
sketch2.addConstraint(Sketcher.Constraint("Perpendicular", 20, 27))
sketch2.addConstraint(Sketcher.Constraint("Parallel", 27, 32))
sketch2.addConstraint(Sketcher.Constraint("Horizontal", 9, 2, 16, 2))
sketch2.addConstraint(Sketcher.Constraint("Horizontal", 15, 2, 17, 2))
sketch2.addConstraint(Sketcher.Constraint("Horizontal", 14, 2, 19, 2))
sketch2.addConstraint(Sketcher.Constraint("Horizontal", 13, 2, 20, 2))
sketch2.addConstraint(Sketcher.Constraint("Horizontal", 11, 2, 22, 2))
sketch2.addConstraint(Sketcher.Constraint("Horizontal", 1, 2, 24, 2))
sketch2.addConstraint(Sketcher.Constraint("Horizontal", 7, 2, 25, 2))
sketch2.addConstraint(Sketcher.Constraint("Horizontal", 4, 2, 28, 2))
sketch2.addConstraint(Sketcher.Constraint("Horizontal", 2, 2, 30, 2))
sketch2.addConstraint(Sketcher.Constraint("Vertical", 1, 2, 10, 2))
sketch2.addConstraint(Sketcher.Constraint("Vertical", 7, 2, 11, 2))
sketch2.addConstraint(Sketcher.Constraint("Vertical", 6, 2, 13, 2))
sketch2.addConstraint(Sketcher.Constraint("Vertical", 22, 2, 24, 2))
sketch2.addConstraint(Sketcher.Constraint("Vertical", 20, 2, 26, 2))
sketch2.addConstraint(Sketcher.Constraint("Vertical", 19, 2, 27, 2))
sketch2.addConstraint(Sketcher.Constraint("Vertical", 17, 2, 29, 2))
sketch2.addConstraint(Sketcher.Constraint("Vertical", 23, 2, 32, 2))
sketch2.addConstraint(Sketcher.Constraint("Equal", 4, 8))
sketch2.addConstraint(Sketcher.Constraint("Equal", 8, 18))
sketch2.addConstraint(Sketcher.Constraint("Equal", 13, 21))
sketch2.addConstraint(Sketcher.Constraint("Equal", 11, 23))
sketch2.addConstraint(Sketcher.Constraint("Equal", 29, 0))
sketch2.addConstraint(Sketcher.Constraint("Equal", 24, 9))
sketch2.addConstraint(Sketcher.Constraint("Equal", 0, 12))
sketch2.addConstraint(Sketcher.Constraint("Equal", 19, 28))
sketch2.addConstraint(Sketcher.Constraint("DistanceX", 4, 1, 4, 2, 0.2))
sketch2.addConstraint(Sketcher.Constraint("DistanceX", 18, 2, 15, 2, 34.0))
sketch2.addConstraint(Sketcher.Constraint("DistanceY", 25, 2, 21, 2, 34.0))
sketch2.addConstraint(Sketcher.Constraint("DistanceY", 3, 2, 1, 2, 8.1))
sketch2.addConstraint(Sketcher.Constraint("DistanceX", -1, 1, 0, 2, 3.97))
sketch2.addConstraint(Sketcher.Constraint("DistanceY", -1, 1, 0, 2, 4.13))
sketch2.addConstraint(Sketcher.Constraint("Distance", 2, 6.341))
sketch2.addConstraint(Sketcher.Constraint("DistanceX", 1, 2, 1, 1, 3.6577))
sketch2.addConstraint(Sketcher.Constraint("DistanceX", 7, 1, 7, 2, 3.5748))
pad2 = body.newObject("PartDesign::Pad", "Pad001")
pad2.Profile = sketch2
pad2.Length = 15
pad2.Reversed = True

# Sketch on XY plane
sketch3 = body.newObject("Sketcher::SketchObject", "Sketch002")
sketch3.AttachmentSupport = (doc.getObject("XY_Plane"), [""])
sketch3.MapMode = "FlatFace"
sketch3.AttachmentOffset = App.Placement(V(0, 0, 10), App.Rotation())
sketch3.addGeometry(Part.LineSegment(V(-6.7, 32.4, 0), V(-6.7, 9.4, 0)), False)
sketch3.addGeometry(Part.ArcOfCircle(Part.Circle(V(-9.4, 9.4, 0), V(0, 0, 1), 2.7), math.radians(-90), math.radians(0)), False)
sketch3.addGeometry(Part.LineSegment(V(-9.4, 6.7, 0), V(-32.4, 6.7, 0)), False)
sketch3.addGeometry(Part.ArcOfCircle(Part.Circle(V(-32.4, 9.4, 0), V(0, 0, 1), 2.7), math.radians(180), math.radians(270)), False)
sketch3.addGeometry(Part.LineSegment(V(-35.1, 9.4, 0), V(-35.1, 32.4, 0)), False)
sketch3.addGeometry(Part.ArcOfCircle(Part.Circle(V(-32.4, 32.4, 0), V(0, 0, 1), 2.7), math.radians(90), math.radians(180)), False)
sketch3.addGeometry(Part.LineSegment(V(-32.4, 35.1, 0), V(-9.4, 35.1, 0)), False)
sketch3.addGeometry(Part.ArcOfCircle(Part.Circle(V(-9.4, 32.4, 0), V(0, 0, 1), 2.7), math.radians(0), math.radians(90)), False)
sketch3.addConstraint(Sketcher.Constraint("Tangent", 0, 2, 1, 2))
sketch3.addConstraint(Sketcher.Constraint("Tangent", 1, 1, 2, 1))
sketch3.addConstraint(Sketcher.Constraint("Tangent", 2, 2, 3, 2))
sketch3.addConstraint(Sketcher.Constraint("Tangent", 3, 1, 4, 1))
sketch3.addConstraint(Sketcher.Constraint("Tangent", 4, 2, 5, 2))
sketch3.addConstraint(Sketcher.Constraint("Tangent", 5, 1, 6, 1))
sketch3.addConstraint(Sketcher.Constraint("Tangent", 6, 2, 7, 2))
sketch3.addConstraint(Sketcher.Constraint("Tangent", 7, 1, 0, 1))
sketch3.addConstraint(Sketcher.Constraint("Vertical", 0))
sketch3.addConstraint(Sketcher.Constraint("Horizontal", 2))
sketch3.addConstraint(Sketcher.Constraint("Vertical", 4))
sketch3.addConstraint(Sketcher.Constraint("Horizontal", 6))
sketch3.addConstraint(Sketcher.Constraint("Equal", 1, 3))
sketch3.addConstraint(Sketcher.Constraint("Equal", 3, 5))
sketch3.addConstraint(Sketcher.Constraint("Equal", 5, 7))
sketch3.addConstraint(Sketcher.Constraint("Equal", 6, 0))
sketch3.addConstraint(Sketcher.Constraint("Radius", 1, 2.7))
sketch3.addConstraint(Sketcher.Constraint("DistanceX", 2, 2, 2, 1, 23.0))
sketch3.addConstraint(Sketcher.Constraint("DistanceX", 1, 3, -1, 1, 9.43))
sketch3.addConstraint(Sketcher.Constraint("DistanceY", -1, 1, 1, 3, 9.43))
pocket1 = body.newObject("PartDesign::Pocket", "Pocket")
pocket1.Profile = sketch3
pocket1.Type = "ThroughAll"
pocket1.Reversed = True

# Sketch on YZ plane
sketch4 = body.newObject("Sketcher::SketchObject", "Sketch003")
sketch4.AttachmentSupport = (doc.getObject("YZ_Plane"), [""])
sketch4.MapMode = "FlatFace"
sketch4.AttachmentOffset = App.Placement(V(0, 0, -45.8299), App.Rotation())
sketch4.addGeometry(Part.Circle(V(20.9, 15, 0), V(0, 0, 1), 1.4), False)
sketch4.addConstraint(Sketcher.Constraint("Diameter", 0, 2.8))
sketch4.addConstraint(Sketcher.Constraint("DistanceY", -1, 1, 0, 3, 15.0))
sketch4.addConstraint(Sketcher.Constraint("DistanceX", -1, 1, 0, 3, 20.93))
doc.recompute()
hole = body.newObject("PartDesign::Hole", "Hole")
hole.Profile = sketch4
hole.ThreadType = "None"
hole.Diameter = 2.8
hole.DepthType = "ThroughAll"
hole.HoleCutType = "Counterbore"
hole.HoleCutDiameter = 6
hole.HoleCutDepth = 4
hole.Reversed = True
doc.recompute()

datumline = body.newObject("PartDesign::Line", "DatumLine")
datumline.Placement = App.Placement(V(-20.9299, 20.9299, 0), App.Rotation(V(0, 0, 1), V(0, 0, 1)))
polarpattern = body.newObject("PartDesign::PolarPattern", "PolarPattern")
polarpattern.Originals = [hole]
polarpattern.Axis = (datumline, [""])
polarpattern.Angle = 360
polarpattern.Occurrences = 4
body.Tip = polarpattern

doc.recompute()
